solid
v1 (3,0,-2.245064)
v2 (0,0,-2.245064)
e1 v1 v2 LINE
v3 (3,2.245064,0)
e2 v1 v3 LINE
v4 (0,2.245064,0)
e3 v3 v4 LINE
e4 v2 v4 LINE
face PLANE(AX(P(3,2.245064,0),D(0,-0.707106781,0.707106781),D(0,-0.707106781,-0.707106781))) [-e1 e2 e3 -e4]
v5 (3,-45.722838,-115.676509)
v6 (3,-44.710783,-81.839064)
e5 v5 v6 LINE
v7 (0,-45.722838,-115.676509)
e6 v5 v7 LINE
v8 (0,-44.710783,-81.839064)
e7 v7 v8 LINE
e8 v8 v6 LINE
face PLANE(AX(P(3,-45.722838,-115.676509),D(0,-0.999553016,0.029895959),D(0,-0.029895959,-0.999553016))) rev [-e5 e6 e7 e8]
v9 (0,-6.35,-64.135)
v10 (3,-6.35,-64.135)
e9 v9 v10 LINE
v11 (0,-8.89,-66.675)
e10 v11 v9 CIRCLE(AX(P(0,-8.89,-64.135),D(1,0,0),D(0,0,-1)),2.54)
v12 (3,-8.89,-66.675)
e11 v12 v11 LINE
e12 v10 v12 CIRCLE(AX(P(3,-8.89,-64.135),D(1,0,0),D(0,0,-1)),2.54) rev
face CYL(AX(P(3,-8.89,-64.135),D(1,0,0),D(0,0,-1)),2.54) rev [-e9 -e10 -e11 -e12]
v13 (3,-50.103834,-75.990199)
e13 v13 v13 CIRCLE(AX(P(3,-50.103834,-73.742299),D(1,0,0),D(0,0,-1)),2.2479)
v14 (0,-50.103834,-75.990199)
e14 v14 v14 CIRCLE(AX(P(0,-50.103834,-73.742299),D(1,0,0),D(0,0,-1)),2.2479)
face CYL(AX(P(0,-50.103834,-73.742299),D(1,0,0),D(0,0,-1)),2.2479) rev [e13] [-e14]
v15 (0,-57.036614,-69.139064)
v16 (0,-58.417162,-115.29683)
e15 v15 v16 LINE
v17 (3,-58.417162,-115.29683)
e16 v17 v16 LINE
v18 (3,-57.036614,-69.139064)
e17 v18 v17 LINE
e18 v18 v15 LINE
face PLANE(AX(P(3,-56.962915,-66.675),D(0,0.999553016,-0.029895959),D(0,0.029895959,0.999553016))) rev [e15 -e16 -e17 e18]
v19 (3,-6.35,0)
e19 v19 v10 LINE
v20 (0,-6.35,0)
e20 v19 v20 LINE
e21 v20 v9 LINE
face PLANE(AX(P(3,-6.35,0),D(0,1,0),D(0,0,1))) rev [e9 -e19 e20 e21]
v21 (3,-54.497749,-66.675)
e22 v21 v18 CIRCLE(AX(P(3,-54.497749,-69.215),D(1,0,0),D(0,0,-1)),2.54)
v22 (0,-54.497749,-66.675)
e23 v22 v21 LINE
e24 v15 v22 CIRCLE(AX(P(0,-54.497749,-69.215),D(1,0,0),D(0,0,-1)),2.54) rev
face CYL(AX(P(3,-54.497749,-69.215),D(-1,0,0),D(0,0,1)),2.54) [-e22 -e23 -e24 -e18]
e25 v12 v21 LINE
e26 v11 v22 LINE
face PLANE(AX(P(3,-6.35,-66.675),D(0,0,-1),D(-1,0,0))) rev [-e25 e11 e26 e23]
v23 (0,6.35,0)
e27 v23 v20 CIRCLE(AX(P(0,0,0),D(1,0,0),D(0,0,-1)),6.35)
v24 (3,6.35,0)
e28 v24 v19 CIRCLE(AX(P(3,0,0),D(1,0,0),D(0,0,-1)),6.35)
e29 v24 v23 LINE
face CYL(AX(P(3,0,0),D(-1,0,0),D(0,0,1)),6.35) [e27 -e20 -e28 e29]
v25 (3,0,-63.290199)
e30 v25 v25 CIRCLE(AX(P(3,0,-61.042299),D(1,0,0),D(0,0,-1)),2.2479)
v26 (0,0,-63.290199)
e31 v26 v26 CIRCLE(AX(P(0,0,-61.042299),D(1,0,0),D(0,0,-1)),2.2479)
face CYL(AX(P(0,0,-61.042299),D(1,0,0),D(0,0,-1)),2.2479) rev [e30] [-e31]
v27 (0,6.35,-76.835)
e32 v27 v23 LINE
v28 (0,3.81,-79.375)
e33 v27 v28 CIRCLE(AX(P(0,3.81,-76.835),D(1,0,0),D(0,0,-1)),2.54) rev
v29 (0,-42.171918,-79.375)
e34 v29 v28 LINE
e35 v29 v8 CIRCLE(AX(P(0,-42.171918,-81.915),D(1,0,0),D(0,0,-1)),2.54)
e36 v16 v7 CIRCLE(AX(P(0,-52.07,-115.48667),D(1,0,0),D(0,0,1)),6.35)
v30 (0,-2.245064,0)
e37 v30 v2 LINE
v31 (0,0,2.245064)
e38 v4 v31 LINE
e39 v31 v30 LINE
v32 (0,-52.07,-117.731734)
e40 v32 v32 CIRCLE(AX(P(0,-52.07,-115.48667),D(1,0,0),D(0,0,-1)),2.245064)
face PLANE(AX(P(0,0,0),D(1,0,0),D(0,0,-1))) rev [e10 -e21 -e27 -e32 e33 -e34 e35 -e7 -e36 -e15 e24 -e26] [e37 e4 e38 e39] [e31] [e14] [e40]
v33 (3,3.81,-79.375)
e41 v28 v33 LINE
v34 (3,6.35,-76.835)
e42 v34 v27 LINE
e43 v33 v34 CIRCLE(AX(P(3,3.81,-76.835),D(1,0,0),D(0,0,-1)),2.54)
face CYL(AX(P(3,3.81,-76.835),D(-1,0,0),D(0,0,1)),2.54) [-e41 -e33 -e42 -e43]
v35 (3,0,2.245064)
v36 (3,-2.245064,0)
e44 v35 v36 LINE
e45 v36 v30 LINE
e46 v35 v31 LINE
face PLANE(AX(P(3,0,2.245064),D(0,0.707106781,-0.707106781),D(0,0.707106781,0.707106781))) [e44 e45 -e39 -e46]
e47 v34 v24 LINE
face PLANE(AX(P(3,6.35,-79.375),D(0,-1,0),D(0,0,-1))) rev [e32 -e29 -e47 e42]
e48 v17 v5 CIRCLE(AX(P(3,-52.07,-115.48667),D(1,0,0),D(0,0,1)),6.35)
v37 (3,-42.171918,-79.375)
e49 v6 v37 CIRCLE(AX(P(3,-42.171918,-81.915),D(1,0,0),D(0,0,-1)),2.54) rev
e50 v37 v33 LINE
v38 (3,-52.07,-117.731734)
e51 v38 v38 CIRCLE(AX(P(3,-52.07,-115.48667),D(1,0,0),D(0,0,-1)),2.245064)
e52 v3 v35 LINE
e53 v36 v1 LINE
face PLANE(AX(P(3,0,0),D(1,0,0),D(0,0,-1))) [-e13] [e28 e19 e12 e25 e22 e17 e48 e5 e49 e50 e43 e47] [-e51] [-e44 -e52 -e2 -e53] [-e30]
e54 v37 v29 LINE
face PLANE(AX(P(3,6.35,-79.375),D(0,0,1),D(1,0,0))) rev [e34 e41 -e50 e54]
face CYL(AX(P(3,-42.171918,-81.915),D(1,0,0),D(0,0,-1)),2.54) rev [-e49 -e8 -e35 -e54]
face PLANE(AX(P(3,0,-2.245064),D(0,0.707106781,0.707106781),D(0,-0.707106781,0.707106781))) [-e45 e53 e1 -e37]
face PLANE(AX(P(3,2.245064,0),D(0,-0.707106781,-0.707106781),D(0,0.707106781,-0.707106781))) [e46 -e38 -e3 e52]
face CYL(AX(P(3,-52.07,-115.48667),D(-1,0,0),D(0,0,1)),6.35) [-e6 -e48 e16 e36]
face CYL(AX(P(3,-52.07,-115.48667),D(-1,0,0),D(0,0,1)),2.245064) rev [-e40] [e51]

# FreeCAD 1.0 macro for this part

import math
import FreeCAD as App
import Part
import Sketcher
from FreeCAD import Vector
Q = App.Units.Quantity


def edges_at(feature, points):
    """Names of the edges that pass closest to the given points."""
    edges = feature.Shape.Edges
    near = lambda p: min(range(len(edges)), key=lambda i: edges[i].distToShape(Part.Vertex(*p))[0])
    return sorted({f"Edge{near(p) + 1}" for p in points})

doc = App.newDocument("Part")
body = doc.addObject("PartDesign::Body", "Body")

sketch1 = doc.addObject("Sketcher::SketchObject", "Sketch")
body.addObject(sketch1)
sketch1.AttachmentSupport = (doc.YZ_Plane, [""])
sketch1.MapMode = "FlatFace"
sketch1.addGeometry(Part.LineSegment(Vector(-6.35, 0, 0), Vector(-6.35, -66.675, 0)), False)
sketch1.addGeometry(Part.LineSegment(Vector(-6.35, -66.675, 0), Vector(-56.962915, -66.675, 0)), False)
sketch1.addGeometry(Part.LineSegment(Vector(-56.962915, -66.675, 0), Vector(-58.417162, -115.29683, 0)), False)
sketch1.addGeometry(Part.ArcOfCircle(Part.Circle(Vector(-52.07, -115.48667, 0), Vector(0, 0, 1), 6.35), math.radians(178.286832), math.radians(358.286832)), False)
sketch1.addGeometry(Part.LineSegment(Vector(-45.722838, -115.676509, 0), Vector(-44.637085, -79.375, 0)), False)
sketch1.addGeometry(Part.LineSegment(Vector(-44.637085, -79.375, 0), Vector(6.35, -79.375, 0)), False)
sketch1.addGeometry(Part.LineSegment(Vector(6.35, -79.375, 0), Vector(6.35, 0, 0)), False)
sketch1.addGeometry(Part.ArcOfCircle(Part.Circle(Vector(0, 0, 0), Vector(0, 0, 1), 6.35), math.radians(0), math.radians(180)), False)
sketch1.addGeometry(Part.Circle(Vector(-52.07, -115.48667, 0), Vector(0, 0, 1), 2.245064), False)
sketch1.addGeometry(Part.LineSegment(Vector(0, 2.245064, 0), Vector(2.245064, 0, 0)), False)
sketch1.addGeometry(Part.LineSegment(Vector(2.245064, 0, 0), Vector(0, -2.245064, 0)), False)
sketch1.addGeometry(Part.LineSegment(Vector(0, -2.245064, 0), Vector(-2.245064, 0, 0)), False)
sketch1.addGeometry(Part.LineSegment(Vector(-2.245064, 0, 0), Vector(0, 2.245064, 0)), False)
sketch1.addConstraint(Sketcher.Constraint("Coincident", 0, 2, 1, 1))
sketch1.addConstraint(Sketcher.Constraint("Coincident", 1, 2, 2, 1))
sketch1.addConstraint(Sketcher.Constraint("Coincident", 2, 2, 3, 1))
sketch1.addConstraint(Sketcher.Constraint("Coincident", 3, 2, 4, 1))
sketch1.addConstraint(Sketcher.Constraint("Coincident", 4, 2, 5, 1))
sketch1.addConstraint(Sketcher.Constraint("Coincident", 5, 2, 6, 1))
sketch1.addConstraint(Sketcher.Constraint("Coincident", 6, 2, 7, 1))
sketch1.addConstraint(Sketcher.Constraint("Coincident", 7, 2, 0, 1))
sketch1.addConstraint(Sketcher.Constraint("Coincident", 9, 2, 10, 1))
sketch1.addConstraint(Sketcher.Constraint("Coincident", 10, 2, 11, 1))
sketch1.addConstraint(Sketcher.Constraint("Coincident", 11, 2, 12, 1))
sketch1.addConstraint(Sketcher.Constraint("Coincident", 12, 2, 9, 1))
sketch1.addConstraint(Sketcher.Constraint("Vertical", 0))
sketch1.addConstraint(Sketcher.Constraint("Horizontal", 1))
sketch1.addConstraint(Sketcher.Constraint("Horizontal", 5))
sketch1.addConstraint(Sketcher.Constraint("Vertical", 6))
sketch1.addConstraint(Sketcher.Constraint("Coincident", 7, 3, -1, 1))
sketch1.addConstraint(Sketcher.Constraint("Coincident", 8, 3, 3, 3))
sketch1.addConstraint(Sketcher.Constraint("PointOnObject", 6, 2, -1))
sketch1.addConstraint(Sketcher.Constraint("PointOnObject", 7, 2, -1))
sketch1.addConstraint(Sketcher.Constraint("PointOnObject", 9, 2, -1))
sketch1.addConstraint(Sketcher.Constraint("PointOnObject", 10, 2, -2))
sketch1.addConstraint(Sketcher.Constraint("PointOnObject", 11, 2, -1))
sketch1.addConstraint(Sketcher.Constraint("PointOnObject", 12, 2, -2))
sketch1.addConstraint(Sketcher.Constraint("Radius", 3, Q("0.25 in")))
sketch1.addConstraint(Sketcher.Constraint("Radius", 7, Q("0.25 in")))
sketch1.addConstraint(Sketcher.Constraint("DistanceX", 3, 3, 0, 2, Q("1.8 in")))
sketch1.addConstraint(Sketcher.Constraint("DistanceY", 4, 2, 1, 2, Q("0.5 in")))
sketch1.addConstraint(Sketcher.Constraint("DistanceY", 0, 2, 0, 1, Q("2.625 in")))
sketch1.addConstraint(Sketcher.Constraint("Distance", 9, Q("0.125 in")))
sketch1.addConstraint(Sketcher.Constraint("Distance", 10, Q("0.125 in")))
sketch1.addConstraint(Sketcher.Constraint("Distance", 11, Q("0.125 in")))
sketch1.addConstraint(Sketcher.Constraint("Diameter", 8, 4.490128))
sketch1.addConstraint(Sketcher.Constraint("DistanceX", 1, 2, 1, 1, 50.612915))
sketch1.addConstraint(Sketcher.Constraint("DistanceX", 5, 1, 5, 2, 50.987085))
sketch1.addConstraint(Sketcher.Constraint("DistanceY", 3, 3, -1, 1, 115.48667))
sketch1.addConstraint(Sketcher.Constraint("DistanceX", 2, 2, -1, 1, 58.417162))
sketch1.addConstraint(Sketcher.Constraint("DistanceX", 3, 2, -1, 1, 45.722838))
sketch1.addConstraint(Sketcher.Constraint("DistanceX", 11, 2, 9, 2, 4.490128))
pad1 = doc.addObject("PartDesign::Pad", "Pad")
body.addObject(pad1)
pad1.Profile = sketch1
pad1.Length = 3
doc.recompute()

fillet = doc.addObject("PartDesign::Fillet", "Fillet")
body.addObject(fillet)
fillet.Base = (pad1, edges_at(pad1, [
    (1.5, 6.35, -79.375),
    (1.5, -44.637, -79.375),
    (1.5, -56.963, -66.675),
    (1.5, -6.35, -66.675),
]))
fillet.Radius = Q("0.1 in")

sketch2 = doc.addObject("Sketcher::SketchObject", "Sketch001")
body.addObject(sketch2)
sketch2.AttachmentSupport = (doc.YZ_Plane, [""])
sketch2.MapMode = "FlatFace"
sketch2.AttachmentOffset = App.Placement(Vector(0, 0, 3), App.Rotation())
sketch2.addGeometry(Part.Circle(Vector(-50.103834, -73.742299, 0), Vector(0, 0, 1), 2.2479), False)
sketch2.addGeometry(Part.Circle(Vector(0, -61.042299, 0), Vector(0, 0, 1), 2.2479), False)
sketch2.addConstraint(Sketcher.Constraint("Equal", 0, 1))
sketch2.addConstraint(Sketcher.Constraint("PointOnObject", 1, 3, -2))
sketch2.addConstraint(Sketcher.Constraint("Diameter", 0, Q("0.177 in")))
sketch2.addConstraint(Sketcher.Constraint("DistanceY", 0, 3, 1, 3, Q("0.5 in")))
sketch2.addConstraint(Sketcher.Constraint("DistanceY", 0, 3, -1, 1, 73.742299))
sketch2.addConstraint(Sketcher.Constraint("DistanceX", 0, 3, -1, 1, 50.103834))
pocket1 = doc.addObject("PartDesign::Pocket", "Pocket")
body.addObject(pocket1)
pocket1.Profile = sketch2
pocket1.Type = "ThroughAll"

doc.recompute()
